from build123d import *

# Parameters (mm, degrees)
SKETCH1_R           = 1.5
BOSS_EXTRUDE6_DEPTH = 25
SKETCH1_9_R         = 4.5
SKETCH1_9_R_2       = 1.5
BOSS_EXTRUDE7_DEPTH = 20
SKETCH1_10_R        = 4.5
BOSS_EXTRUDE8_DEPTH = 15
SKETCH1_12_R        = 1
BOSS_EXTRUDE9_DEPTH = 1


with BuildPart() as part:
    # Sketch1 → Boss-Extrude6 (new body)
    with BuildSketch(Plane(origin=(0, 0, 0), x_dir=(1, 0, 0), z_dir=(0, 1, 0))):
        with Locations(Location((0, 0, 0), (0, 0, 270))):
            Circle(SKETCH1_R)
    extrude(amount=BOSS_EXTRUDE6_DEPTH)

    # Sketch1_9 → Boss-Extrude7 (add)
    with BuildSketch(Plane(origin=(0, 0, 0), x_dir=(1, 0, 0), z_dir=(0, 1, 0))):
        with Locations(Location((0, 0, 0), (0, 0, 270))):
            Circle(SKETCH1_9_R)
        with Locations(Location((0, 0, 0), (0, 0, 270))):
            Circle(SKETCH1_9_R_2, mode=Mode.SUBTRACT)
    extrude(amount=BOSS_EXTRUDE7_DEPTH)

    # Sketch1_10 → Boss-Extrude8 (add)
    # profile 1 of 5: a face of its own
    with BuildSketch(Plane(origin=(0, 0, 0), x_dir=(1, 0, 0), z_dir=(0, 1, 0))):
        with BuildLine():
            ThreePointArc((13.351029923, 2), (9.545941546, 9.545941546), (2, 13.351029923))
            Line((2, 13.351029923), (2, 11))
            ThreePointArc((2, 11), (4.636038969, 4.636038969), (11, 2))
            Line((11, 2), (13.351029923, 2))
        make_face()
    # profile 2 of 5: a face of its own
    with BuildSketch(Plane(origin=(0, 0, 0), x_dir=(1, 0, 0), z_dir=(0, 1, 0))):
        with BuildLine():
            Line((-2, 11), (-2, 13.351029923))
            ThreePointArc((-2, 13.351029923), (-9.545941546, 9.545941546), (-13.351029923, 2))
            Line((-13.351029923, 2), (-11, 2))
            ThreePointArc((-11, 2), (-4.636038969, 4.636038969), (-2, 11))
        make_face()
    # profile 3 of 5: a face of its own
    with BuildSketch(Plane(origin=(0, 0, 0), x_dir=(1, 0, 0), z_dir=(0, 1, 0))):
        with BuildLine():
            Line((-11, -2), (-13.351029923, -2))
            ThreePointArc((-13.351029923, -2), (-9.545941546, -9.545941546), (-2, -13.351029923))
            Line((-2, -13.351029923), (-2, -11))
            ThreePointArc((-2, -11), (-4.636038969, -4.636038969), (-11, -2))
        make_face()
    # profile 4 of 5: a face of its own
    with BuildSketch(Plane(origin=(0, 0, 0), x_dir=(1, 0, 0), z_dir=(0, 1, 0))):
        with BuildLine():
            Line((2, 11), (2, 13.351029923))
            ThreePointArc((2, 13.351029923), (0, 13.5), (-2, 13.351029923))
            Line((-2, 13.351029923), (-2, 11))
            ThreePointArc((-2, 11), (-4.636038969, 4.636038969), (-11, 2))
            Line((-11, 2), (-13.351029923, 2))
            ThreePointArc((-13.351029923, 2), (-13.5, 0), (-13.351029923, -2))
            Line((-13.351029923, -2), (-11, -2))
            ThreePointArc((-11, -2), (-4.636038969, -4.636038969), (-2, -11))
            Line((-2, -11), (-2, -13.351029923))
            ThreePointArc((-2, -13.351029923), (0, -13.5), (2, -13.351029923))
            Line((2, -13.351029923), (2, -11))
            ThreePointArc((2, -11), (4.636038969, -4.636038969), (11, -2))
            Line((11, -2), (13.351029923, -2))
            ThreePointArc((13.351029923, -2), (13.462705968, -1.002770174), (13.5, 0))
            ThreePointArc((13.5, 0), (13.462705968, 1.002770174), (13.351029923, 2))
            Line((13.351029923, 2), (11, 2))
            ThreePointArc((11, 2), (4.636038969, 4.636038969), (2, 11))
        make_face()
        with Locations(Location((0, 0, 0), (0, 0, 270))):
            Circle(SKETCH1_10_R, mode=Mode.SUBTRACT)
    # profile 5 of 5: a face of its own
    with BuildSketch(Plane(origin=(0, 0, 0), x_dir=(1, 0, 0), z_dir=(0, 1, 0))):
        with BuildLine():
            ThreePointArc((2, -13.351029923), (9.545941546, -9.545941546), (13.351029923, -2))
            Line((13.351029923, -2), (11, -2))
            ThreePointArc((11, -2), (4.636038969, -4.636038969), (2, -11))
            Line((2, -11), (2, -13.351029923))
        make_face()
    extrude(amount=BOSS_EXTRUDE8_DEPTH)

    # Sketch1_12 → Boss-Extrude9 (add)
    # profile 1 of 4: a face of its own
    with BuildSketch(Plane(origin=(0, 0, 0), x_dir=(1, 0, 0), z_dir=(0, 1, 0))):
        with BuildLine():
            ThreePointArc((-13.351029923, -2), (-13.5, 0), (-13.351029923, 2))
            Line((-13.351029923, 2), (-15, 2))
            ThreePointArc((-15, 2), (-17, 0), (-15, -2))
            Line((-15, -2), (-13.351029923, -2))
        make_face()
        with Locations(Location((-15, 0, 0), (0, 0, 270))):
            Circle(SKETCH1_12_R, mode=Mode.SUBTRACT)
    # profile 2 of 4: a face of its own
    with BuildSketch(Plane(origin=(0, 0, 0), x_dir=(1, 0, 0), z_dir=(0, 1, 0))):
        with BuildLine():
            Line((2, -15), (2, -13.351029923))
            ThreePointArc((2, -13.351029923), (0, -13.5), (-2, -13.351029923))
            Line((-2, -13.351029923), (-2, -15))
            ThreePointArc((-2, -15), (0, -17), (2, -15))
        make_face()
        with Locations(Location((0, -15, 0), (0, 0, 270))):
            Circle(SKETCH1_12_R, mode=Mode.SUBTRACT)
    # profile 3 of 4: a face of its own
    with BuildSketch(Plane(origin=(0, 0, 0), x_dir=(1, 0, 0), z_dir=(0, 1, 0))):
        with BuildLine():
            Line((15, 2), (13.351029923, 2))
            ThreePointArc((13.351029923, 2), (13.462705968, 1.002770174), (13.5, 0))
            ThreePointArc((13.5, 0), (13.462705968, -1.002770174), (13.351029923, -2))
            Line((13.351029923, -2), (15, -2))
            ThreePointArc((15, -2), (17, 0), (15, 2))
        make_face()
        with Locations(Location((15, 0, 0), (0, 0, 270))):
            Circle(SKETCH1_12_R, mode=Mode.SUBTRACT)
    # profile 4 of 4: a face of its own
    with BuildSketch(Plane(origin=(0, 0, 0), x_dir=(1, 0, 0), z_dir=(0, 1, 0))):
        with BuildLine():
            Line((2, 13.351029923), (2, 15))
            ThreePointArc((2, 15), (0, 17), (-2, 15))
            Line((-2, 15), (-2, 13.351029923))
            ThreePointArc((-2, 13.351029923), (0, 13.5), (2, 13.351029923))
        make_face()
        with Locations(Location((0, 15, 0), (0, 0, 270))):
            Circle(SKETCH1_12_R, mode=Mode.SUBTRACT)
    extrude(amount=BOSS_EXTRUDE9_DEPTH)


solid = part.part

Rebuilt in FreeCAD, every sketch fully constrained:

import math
import FreeCAD as App
import Part
import Sketcher

V = App.Vector

doc = App.newDocument("Part")
params = doc.addObject("Spreadsheet::Sheet", "Params")
for row, (alias, value) in enumerate([
    ("sketch1_diameter", "3 mm"),
    ("pad1_length", "25 mm"),
    ("sketch2_diameter", "9 mm"),
    ("sketch2_diameter2", "3 mm"),
    ("pad2_length", "20 mm"),
    ("sketch3_diameter", "9 mm"),
    ("sketch3_radius", "13.5 mm"),
    ("pad3_length", "15 mm"),
    ("sketch4_diameter", "2 mm"),
    ("sketch4_radius", "2 mm"),
    ("sketch4_radius2", "13.5 mm"),
    ("pad4_length", "1 mm"),
], start=1):
    params.set(f"A{row}", alias)
    params.set(f"B{row}", "=" + value)
    params.setAlias(f"B{row}", alias)

body = doc.addObject("PartDesign::Body", "Body")

# Sketch on XZ plane
sketch1 = body.newObject("Sketcher::SketchObject", "Sketch")
sketch1.AttachmentSupport = (doc.getObject("XZ_Plane"), [""])
sketch1.MapMode = "FlatFace"
sketch1.addGeometry(Part.Circle(V(0, 0, 0), V(0, 0, 1), 1.5), False)
sketch1.addConstraint(Sketcher.Constraint("Coincident", 0, 3, -1, 1))
sketch1.addConstraint(Sketcher.Constraint("Diameter", 0, 3.0))
sketch1.setExpression("Constraints[1]", "Params.sketch1_diameter")
pad1 = body.newObject("PartDesign::Pad", "Pad")
pad1.Profile = sketch1
pad1.setExpression("Length", "Params.pad1_length")
pad1.Reversed = True

# Sketch on XZ plane
sketch2 = body.newObject("Sketcher::SketchObject", "Sketch001")
sketch2.AttachmentSupport = (doc.getObject("XZ_Plane"), [""])
sketch2.MapMode = "FlatFace"
sketch2.addGeometry(Part.Circle(V(0, 0, 0), V(0, 0, 1), 4.5), False)
sketch2.addGeometry(Part.Circle(V(0, 0, 0), V(0, 0, 1), 1.5), False)
sketch2.addConstraint(Sketcher.Constraint("Coincident", 0, 3, -1, 1))
sketch2.addConstraint(Sketcher.Constraint("Coincident", 1, 3, -1, 1))
sketch2.addConstraint(Sketcher.Constraint("Diameter", 0, 9.0))
sketch2.addConstraint(Sketcher.Constraint("Diameter", 1, 3.0))
sketch2.setExpression("Constraints[2]", "Params.sketch2_diameter")
sketch2.setExpression("Constraints[3]", "Params.sketch2_diameter2")
pad2 = body.newObject("PartDesign::Pad", "Pad001")
pad2.Profile = sketch2
pad2.setExpression("Length", "Params.pad2_length")
pad2.Reversed = True

# Sketch on XZ plane
sketch3 = body.newObject("Sketcher::SketchObject", "Sketch002")
sketch3.AttachmentSupport = (doc.getObject("XZ_Plane"), [""])
sketch3.MapMode = "FlatFace"
sketch3.addGeometry(Part.ArcOfCircle(Part.Circle(V(0, 0, 0), V(0, 0, 1), 13.5), math.radians(-81.480376), math.radians(-8.519624)), False)
sketch3.addGeometry(Part.ArcOfCircle(Part.Circle(V(0, 0, 0), V(0, 0, 1), 13.5), math.radians(-98.519624), math.radians(-81.480376)), False)
sketch3.addGeometry(Part.ArcOfCircle(Part.Circle(V(0, 0, 0), V(0, 0, 1), 13.5), math.radians(-171.480376), math.radians(-98.519624)), False)
sketch3.addGeometry(Part.ArcOfCircle(Part.Circle(V(0, 0, 0), V(0, 0, 1), 13.5), math.radians(171.480376), math.radians(188.519624)), False)
sketch3.addGeometry(Part.ArcOfCircle(Part.Circle(V(0, 0, 0), V(0, 0, 1), 13.5), math.radians(98.519624), math.radians(171.480376)), False)
sketch3.addGeometry(Part.ArcOfCircle(Part.Circle(V(0, 0, 0), V(0, 0, 1), 13.5), math.radians(81.480376), math.radians(98.519624)), False)
sketch3.addGeometry(Part.ArcOfCircle(Part.Circle(V(0, 0, 0), V(0, 0, 1), 13.5), math.radians(8.519624), math.radians(81.480376)), False)
sketch3.addGeometry(Part.ArcOfCircle(Part.Circle(V(0, 0, 0), V(0, 0, 1), 13.5), math.radians(0), math.radians(8.519624)), False)
sketch3.addGeometry(Part.ArcOfCircle(Part.Circle(V(0, 0, 0), V(0, 0, 1), 13.5), math.radians(-8.519624), math.radians(0)), False)
sketch3.addGeometry(Part.Circle(V(0, 0, 0), V(0, 0, 1), 4.5), False)
sketch3.addConstraint(Sketcher.Constraint("Tangent", 0, 1, 1, 2))
sketch3.addConstraint(Sketcher.Constraint("Tangent", 1, 1, 2, 2))
sketch3.addConstraint(Sketcher.Constraint("Tangent", 2, 1, 3, 2))
sketch3.addConstraint(Sketcher.Constraint("Tangent", 3, 1, 4, 2))
sketch3.addConstraint(Sketcher.Constraint("Tangent", 4, 1, 5, 2))
sketch3.addConstraint(Sketcher.Constraint("Tangent", 5, 1, 6, 2))
sketch3.addConstraint(Sketcher.Constraint("Tangent", 6, 1, 7, 2))
sketch3.addConstraint(Sketcher.Constraint("Tangent", 7, 1, 8, 2))
sketch3.addConstraint(Sketcher.Constraint("Tangent", 8, 1, 0, 2))
sketch3.addConstraint(Sketcher.Constraint("Coincident", 0, 3, -1, 1))
sketch3.addConstraint(Sketcher.Constraint("Coincident", 2, 3, -1, 1))
sketch3.addConstraint(Sketcher.Constraint("Coincident", 4, 3, -1, 1))
sketch3.addConstraint(Sketcher.Constraint("Coincident", 6, 3, -1, 1))
sketch3.addConstraint(Sketcher.Constraint("Coincident", 9, 3, -1, 1))
sketch3.addConstraint(Sketcher.Constraint("PointOnObject", 7, 1, -1))
sketch3.addConstraint(Sketcher.Constraint("Horizontal", 0, 1, 1, 1))
sketch3.addConstraint(Sketcher.Constraint("Horizontal", 4, 1, 5, 1))
sketch3.addConstraint(Sketcher.Constraint("Horizontal", 3, 1, 6, 1))
sketch3.addConstraint(Sketcher.Constraint("Horizontal", 2, 1, 8, 1))
sketch3.addConstraint(Sketcher.Constraint("Vertical", 2, 1, 3, 1))
sketch3.addConstraint(Sketcher.Constraint("Vertical", 1, 1, 4, 1))
sketch3.addConstraint(Sketcher.Constraint("Diameter", 9, 9.0))
sketch3.addConstraint(Sketcher.Constraint("Radius", 0, 13.5))
sketch3.addConstraint(Sketcher.Constraint("DistanceX", -1, 1, 0, 1, 2.0))
sketch3.addConstraint(Sketcher.Constraint("DistanceY", 2, 1, -1, 1, 2.0))
sketch3.setExpression("Constraints[21]", "Params.sketch3_diameter")
sketch3.setExpression("Constraints[22]", "Params.sketch3_radius")
pad3 = body.newObject("PartDesign::Pad", "Pad002")
pad3.Profile = sketch3
pad3.setExpression("Length", "Params.pad3_length")
pad3.Reversed = True

# Sketch on XZ plane
sketch4 = body.newObject("Sketcher::SketchObject", "Sketch003")
sketch4.AttachmentSupport = (doc.getObject("XZ_Plane"), [""])
sketch4.MapMode = "FlatFace"
sketch4.addGeometry(Part.ArcOfCircle(Part.Circle(V(0, 0, 0), V(0, 0, 1), 13.5), math.radians(171.480376), math.radians(188.519624)), False)
sketch4.addGeometry(Part.LineSegment(V(-13.35103, -2, 0), V(-15, -2, 0)), False)
sketch4.addGeometry(Part.ArcOfCircle(Part.Circle(V(-15, 0, 0), V(0, 0, 1), 2), math.radians(90), math.radians(270)), False)
sketch4.addGeometry(Part.LineSegment(V(-15, 2, 0), V(-13.35103, 2, 0)), False)
sketch4.addGeometry(Part.Circle(V(-15, 0, 0), V(0, 0, 1), 1), False)
sketch4.addGeometry(Part.LineSegment(V(2, 15, 0), V(2, 13.35103, 0)), False)
sketch4.addGeometry(Part.ArcOfCircle(Part.Circle(V(0, 0, 0), V(0, 0, 1), 13.5), math.radians(81.480376), math.radians(98.519624)), False)
sketch4.addGeometry(Part.LineSegment(V(-2, 13.35103, 0), V(-2, 15, 0)), False)
sketch4.addGeometry(Part.ArcOfCircle(Part.Circle(V(0, 15, 0), V(0, 0, 1), 2), math.radians(0), math.radians(180)), False)
sketch4.addGeometry(Part.Circle(V(0, 15, 0), V(0, 0, 1), 1), False)
sketch4.addGeometry(Part.LineSegment(V(15, -2, 0), V(13.35103, -2, 0)), False)
sketch4.addGeometry(Part.ArcOfCircle(Part.Circle(V(0, 0, 0), V(0, 0, 1), 13.5), math.radians(-8.519624), math.radians(0)), False)
sketch4.addGeometry(Part.ArcOfCircle(Part.Circle(V(0, 0, 0), V(0, 0, 1), 13.5), math.radians(0), math.radians(8.519624)), False)
sketch4.addGeometry(Part.LineSegment(V(13.35103, 2, 0), V(15, 2, 0)), False)
sketch4.addGeometry(Part.ArcOfCircle(Part.Circle(V(15, 0, 0), V(0, 0, 1), 2), math.radians(-90), math.radians(90)), False)
sketch4.addGeometry(Part.Circle(V(15, 0, 0), V(0, 0, 1), 1), False)
sketch4.addGeometry(Part.LineSegment(V(2, -13.35103, 0), V(2, -15, 0)), False)
sketch4.addGeometry(Part.ArcOfCircle(Part.Circle(V(0, -15, 0), V(0, 0, 1), 2), math.radians(180), math.radians(360)), False)
sketch4.addGeometry(Part.LineSegment(V(-2, -15, 0), V(-2, -13.35103, 0)), False)
sketch4.addGeometry(Part.ArcOfCircle(Part.Circle(V(0, 0, 0), V(0, 0, 1), 13.5), math.radians(-98.519624), math.radians(-81.480376)), False)
sketch4.addGeometry(Part.Circle(V(0, -15, 0), V(0, 0, 1), 1), False)
sketch4.addConstraint(Sketcher.Constraint("Coincident", 0, 2, 1, 1))
sketch4.addConstraint(Sketcher.Constraint("Tangent", 1, 2, 2, 2))
sketch4.addConstraint(Sketcher.Constraint("Tangent", 2, 1, 3, 1))
sketch4.addConstraint(Sketcher.Constraint("Coincident", 3, 2, 0, 1))
sketch4.addConstraint(Sketcher.Constraint("Coincident", 5, 2, 6, 1))
sketch4.addConstraint(Sketcher.Constraint("Coincident", 6, 2, 7, 1))
sketch4.addConstraint(Sketcher.Constraint("Tangent", 7, 2, 8, 2))
sketch4.addConstraint(Sketcher.Constraint("Tangent", 8, 1, 5, 1))
sketch4.addConstraint(Sketcher.Constraint("Coincident", 10, 2, 11, 1))
sketch4.addConstraint(Sketcher.Constraint("Tangent", 11, 2, 12, 1))
sketch4.addConstraint(Sketcher.Constraint("Coincident", 12, 2, 13, 1))
sketch4.addConstraint(Sketcher.Constraint("Tangent", 13, 2, 14, 2))
sketch4.addConstraint(Sketcher.Constraint("Tangent", 14, 1, 10, 1))
sketch4.addConstraint(Sketcher.Constraint("Tangent", 16, 2, 17, 2))
sketch4.addConstraint(Sketcher.Constraint("Tangent", 17, 1, 18, 1))
sketch4.addConstraint(Sketcher.Constraint("Coincident", 18, 2, 19, 1))
sketch4.addConstraint(Sketcher.Constraint("Coincident", 19, 2, 16, 1))
sketch4.addConstraint(Sketcher.Constraint("Horizontal", 1))
sketch4.addConstraint(Sketcher.Constraint("Horizontal", 3))
sketch4.addConstraint(Sketcher.Constraint("Vertical", 5))
sketch4.addConstraint(Sketcher.Constraint("Vertical", 7))
sketch4.addConstraint(Sketcher.Constraint("Horizontal", 10))
sketch4.addConstraint(Sketcher.Constraint("Horizontal", 13))
sketch4.addConstraint(Sketcher.Constraint("Vertical", 16))
sketch4.addConstraint(Sketcher.Constraint("Vertical", 18))
sketch4.addConstraint(Sketcher.Constraint("Coincident", 0, 3, -1, 1))
sketch4.addConstraint(Sketcher.Constraint("Coincident", 6, 3, -1, 1))
sketch4.addConstraint(Sketcher.Constraint("Coincident", 11, 3, -1, 1))
sketch4.addConstraint(Sketcher.Constraint("Coincident", 19, 3, -1, 1))
sketch4.addConstraint(Sketcher.Constraint("Coincident", 4, 3, 2, 3))
sketch4.addConstraint(Sketcher.Constraint("Coincident", 9, 3, 8, 3))
sketch4.addConstraint(Sketcher.Constraint("Coincident", 15, 3, 14, 3))
sketch4.addConstraint(Sketcher.Constraint("Coincident", 20, 3, 17, 3))
sketch4.addConstraint(Sketcher.Constraint("Equal", 0, 6))
sketch4.addConstraint(Sketcher.Constraint("Equal", 2, 8))
sketch4.addConstraint(Sketcher.Constraint("Equal", 4, 9))
sketch4.addConstraint(Sketcher.Constraint("Equal", 6, 11))
sketch4.addConstraint(Sketcher.Constraint("Equal", 11, 12))
sketch4.addConstraint(Sketcher.Constraint("Equal", 8, 14))
sketch4.addConstraint(Sketcher.Constraint("Equal", 9, 15))
sketch4.addConstraint(Sketcher.Constraint("Equal", 14, 17))
sketch4.addConstraint(Sketcher.Constraint("Equal", 12, 19))
sketch4.addConstraint(Sketcher.Constraint("Equal", 15, 20))
sketch4.addConstraint(Sketcher.Constraint("Symmetric", 2, 3, 14, 3, -1, 1))
sketch4.addConstraint(Sketcher.Constraint("Symmetric", 8, 3, 17, 3, -1, 1))
sketch4.addConstraint(Sketcher.Constraint("PointOnObject", 2, 3, -1))
sketch4.addConstraint(Sketcher.Constraint("PointOnObject", 8, 3, -2))
sketch4.addConstraint(Sketcher.Constraint("PointOnObject", 11, 2, -1))
sketch4.addConstraint(Sketcher.Constraint("Equal", 13, 5))
sketch4.addConstraint(Sketcher.Constraint("Diameter", 4, 2.0))
sketch4.addConstraint(Sketcher.Constraint("Radius", 2, 2.0))
sketch4.addConstraint(Sketcher.Constraint("Radius", 0, 13.5))
sketch4.addConstraint(Sketcher.Constraint("DistanceX", 2, 3, -1, 1, 15.0))
sketch4.setExpression("Constraints[49]", "Params.sketch4_diameter")
sketch4.setExpression("Constraints[50]", "Params.sketch4_radius")
sketch4.setExpression("Constraints[51]", "Params.sketch4_radius2")
pad4 = body.newObject("PartDesign::Pad", "Pad003")
pad4.Profile = sketch4
pad4.setExpression("Length", "Params.pad4_length")
pad4.Reversed = True

doc.recompute()
